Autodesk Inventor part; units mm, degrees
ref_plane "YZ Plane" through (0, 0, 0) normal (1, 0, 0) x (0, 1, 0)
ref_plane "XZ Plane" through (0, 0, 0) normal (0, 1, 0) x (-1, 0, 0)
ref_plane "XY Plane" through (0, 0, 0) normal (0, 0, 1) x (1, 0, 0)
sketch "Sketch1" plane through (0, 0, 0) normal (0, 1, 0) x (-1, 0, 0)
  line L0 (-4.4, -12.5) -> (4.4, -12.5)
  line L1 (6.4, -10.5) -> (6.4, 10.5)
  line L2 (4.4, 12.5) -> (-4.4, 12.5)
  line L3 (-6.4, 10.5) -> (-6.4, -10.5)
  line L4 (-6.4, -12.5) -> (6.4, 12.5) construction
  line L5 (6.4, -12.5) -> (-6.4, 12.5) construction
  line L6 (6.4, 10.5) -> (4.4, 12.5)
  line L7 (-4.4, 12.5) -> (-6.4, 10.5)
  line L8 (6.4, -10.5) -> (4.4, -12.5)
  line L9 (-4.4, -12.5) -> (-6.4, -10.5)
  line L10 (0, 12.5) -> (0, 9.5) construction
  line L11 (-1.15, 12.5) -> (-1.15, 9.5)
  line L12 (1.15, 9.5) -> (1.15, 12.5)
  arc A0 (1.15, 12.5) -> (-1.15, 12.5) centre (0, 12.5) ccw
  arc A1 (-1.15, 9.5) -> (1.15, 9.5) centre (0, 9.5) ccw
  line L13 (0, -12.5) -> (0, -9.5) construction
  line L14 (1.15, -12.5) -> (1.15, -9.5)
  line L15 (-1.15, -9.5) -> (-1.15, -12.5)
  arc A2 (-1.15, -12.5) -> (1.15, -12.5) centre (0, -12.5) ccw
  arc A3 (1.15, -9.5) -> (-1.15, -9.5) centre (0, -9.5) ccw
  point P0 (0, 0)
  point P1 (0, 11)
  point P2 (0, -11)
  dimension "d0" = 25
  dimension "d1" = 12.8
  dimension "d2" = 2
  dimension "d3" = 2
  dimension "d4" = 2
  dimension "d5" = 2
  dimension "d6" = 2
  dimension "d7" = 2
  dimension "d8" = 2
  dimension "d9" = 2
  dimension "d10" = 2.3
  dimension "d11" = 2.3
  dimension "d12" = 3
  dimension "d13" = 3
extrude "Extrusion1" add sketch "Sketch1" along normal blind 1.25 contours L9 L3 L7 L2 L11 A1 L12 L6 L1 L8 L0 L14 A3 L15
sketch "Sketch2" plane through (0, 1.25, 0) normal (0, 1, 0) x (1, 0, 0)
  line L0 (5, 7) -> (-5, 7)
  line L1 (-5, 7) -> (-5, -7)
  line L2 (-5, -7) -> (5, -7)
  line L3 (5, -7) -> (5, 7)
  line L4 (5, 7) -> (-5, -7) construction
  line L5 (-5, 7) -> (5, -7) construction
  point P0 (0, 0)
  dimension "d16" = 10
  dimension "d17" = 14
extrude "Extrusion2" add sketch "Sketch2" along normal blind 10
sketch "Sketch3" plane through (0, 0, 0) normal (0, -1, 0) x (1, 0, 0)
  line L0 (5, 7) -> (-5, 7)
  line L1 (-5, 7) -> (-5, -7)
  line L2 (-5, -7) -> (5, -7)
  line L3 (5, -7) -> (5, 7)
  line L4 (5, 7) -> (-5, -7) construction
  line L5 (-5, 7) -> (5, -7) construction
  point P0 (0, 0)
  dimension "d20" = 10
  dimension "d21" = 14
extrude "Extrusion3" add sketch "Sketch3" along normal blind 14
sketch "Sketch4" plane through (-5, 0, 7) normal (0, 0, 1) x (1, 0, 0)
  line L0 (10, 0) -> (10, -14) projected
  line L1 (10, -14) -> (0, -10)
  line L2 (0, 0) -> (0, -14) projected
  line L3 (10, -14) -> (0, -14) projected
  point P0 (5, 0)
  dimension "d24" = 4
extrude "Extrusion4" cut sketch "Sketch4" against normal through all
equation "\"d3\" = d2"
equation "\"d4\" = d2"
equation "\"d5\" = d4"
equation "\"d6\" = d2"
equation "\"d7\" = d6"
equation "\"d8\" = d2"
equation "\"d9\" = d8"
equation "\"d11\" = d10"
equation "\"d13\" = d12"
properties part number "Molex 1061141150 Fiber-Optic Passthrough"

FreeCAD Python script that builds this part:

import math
import FreeCAD as App
import Part
import Sketcher
Q = App.Units.Quantity


def add_polygon(sketch, points):
    """Adds a closed chain of lines whose ends are joined by coincident constraints."""
    first, n = sketch.GeometryCount, len(points)
    for a, b in zip(points, points[1:] + points[:1]):
        sketch.addGeometry(Part.LineSegment(App.Vector(*a, 0), App.Vector(*b, 0)), False)
    for i in range(n):
        sketch.addConstraint(Sketcher.Constraint("Coincident", first + i, 2, first + (i + 1) % n, 1))

doc = App.newDocument("Part")
params = doc.addObject("Spreadsheet::Sheet", "Params")
for row, (alias, value) in enumerate([
    ("sketch1_height", "3 mm"),
    ("sketch1_radius", "1.15 mm"),
    ("sketch1_height2", "21 mm"),
    ("sketch1_width", "3.25 mm"),
    ("pad1_length", "1.25 mm"),
    ("sketch2_width", "10 mm"),
    ("sketch2_height", "14 mm"),
    ("pad2_length", "10 mm"),
    ("sketch3_width", "10 mm"),
    ("sketch3_height", "14 mm"),
    ("pad3_length", "14 mm"),
    ("sketch4_height", "4 mm"),
    ("sketch4_width", "10 mm"),
], start=1):
    params.set(f"A{row}", alias)
    params.set(f"B{row}", "=" + value)
    params.setAlias(f"B{row}", alias)

body = doc.addObject("PartDesign::Body", "Body")

sketch1 = body.newObject("Sketcher::SketchObject", "Sketch")
sketch1.AttachmentSupport = (doc.getObject("XZ_Plane"), [""])
sketch1.MapMode = "FlatFace"
sketch1.addGeometry([
    Part.LineSegment(App.Vector(6.4, -10.5, 0), App.Vector(4.4, -12.5, 0)),
    Part.LineSegment(App.Vector(4.4, -12.5, 0), App.Vector(1.1, -12.5, 0)),
    Part.LineSegment(App.Vector(1.1, -12.5, 0), App.Vector(1.1, -9.5, 0)),
    Part.ArcOfCircle(Part.Circle(App.Vector(0, -9.5, 0), App.Vector(0, 0, 1), 1.1), math.radians(0), math.radians(180)),
    Part.LineSegment(App.Vector(-1.1, -9.5, 0), App.Vector(-1.1, -12.5, 0)),
    Part.LineSegment(App.Vector(-1.1, -12.5, 0), App.Vector(-4.4, -12.5, 0)),
    Part.LineSegment(App.Vector(-4.4, -12.5, 0), App.Vector(-6.4, -10.5, 0)),
    Part.LineSegment(App.Vector(-6.4, -10.5, 0), App.Vector(-6.4, 10.5, 0)),
    Part.LineSegment(App.Vector(-6.4, 10.5, 0), App.Vector(-4.4, 12.5, 0)),
    Part.LineSegment(App.Vector(-4.4, 12.5, 0), App.Vector(-1.1, 12.5, 0)),
    Part.LineSegment(App.Vector(-1.1, 12.5, 0), App.Vector(-1.1, 9.5, 0)),
    Part.ArcOfCircle(Part.Circle(App.Vector(0, 9.5, 0), App.Vector(0, 0, 1), 1.1), math.radians(180), math.radians(360)),
    Part.LineSegment(App.Vector(1.1, 9.5, 0), App.Vector(1.1, 12.5, 0)),
    Part.LineSegment(App.Vector(1.1, 12.5, 0), App.Vector(4.4, 12.5, 0)),
    Part.LineSegment(App.Vector(4.4, 12.5, 0), App.Vector(6.4, 10.5, 0)),
    Part.LineSegment(App.Vector(6.4, 10.5, 0), App.Vector(6.4, -10.5, 0)),
], False)
sketch1.addConstraint([
    Sketcher.Constraint("Coincident", 0, 2, 1, 1),
    Sketcher.Constraint("Coincident", 1, 2, 2, 1),
    Sketcher.Constraint("Tangent", 2, 2, 3, 1),
    Sketcher.Constraint("Tangent", 3, 2, 4, 1),
    Sketcher.Constraint("Coincident", 4, 2, 5, 1),
    Sketcher.Constraint("Coincident", 5, 2, 6, 1),
    Sketcher.Constraint("Coincident", 6, 2, 7, 1),
    Sketcher.Constraint("Coincident", 7, 2, 8, 1),
    Sketcher.Constraint("Coincident", 8, 2, 9, 1),
    Sketcher.Constraint("Coincident", 9, 2, 10, 1),
    Sketcher.Constraint("Tangent", 10, 2, 11, 1),
    Sketcher.Constraint("Tangent", 11, 2, 12, 1),
    Sketcher.Constraint("Coincident", 12, 2, 13, 1),
    Sketcher.Constraint("Coincident", 13, 2, 14, 1),
    Sketcher.Constraint("Coincident", 14, 2, 15, 1),
    Sketcher.Constraint("Coincident", 15, 2, 0, 1),
    Sketcher.Constraint("Horizontal", 1),
    Sketcher.Constraint("Vertical", 2),
    Sketcher.Constraint("Vertical", 4),
    Sketcher.Constraint("Horizontal", 5),
    Sketcher.Constraint("Vertical", 7),
    Sketcher.Constraint("Horizontal", 9),
    Sketcher.Constraint("Vertical", 10),
    Sketcher.Constraint("Vertical", 12),
    Sketcher.Constraint("Horizontal", 13),
    Sketcher.Constraint("Vertical", 15),
    Sketcher.Constraint("Equal", 3, 11),
    Sketcher.Constraint("Symmetric", 3, 3, 11, 3, -1, 1),
    Sketcher.Constraint("Symmetric", 0, 2, 8, 2, -1, 1),
    Sketcher.Constraint("Symmetric", 5, 2, 13, 2, -1, 1),
    Sketcher.Constraint("Symmetric", 6, 2, 14, 2, -1, 1),
    Sketcher.Constraint("Symmetric", 1, 2, 4, 2, -2),
    Sketcher.Constraint("Perpendicular", 0, 6),
    Sketcher.Constraint("Perpendicular", 6, 8),
    Sketcher.Constraint("Horizontal", 7, 2, 14, 2),
    Sketcher.Constraint("Vertical", 5, 2, 8, 2),
    Sketcher.Constraint("DistanceY", 2, 1, 2, 2, Q("3 mm")),
    Sketcher.Constraint("Radius", 3, Q("1.15 mm")),
    Sketcher.Constraint("DistanceX", 6, 2, 5, 2, Q("2 mm")),
    Sketcher.Constraint("DistanceY", 7, 1, 7, 2, Q("21 mm")),
    Sketcher.Constraint("DistanceX", 1, 2, 1, 1, Q("3.25 mm")),
])
sketch1.setExpression("Constraints[36]", "Params.sketch1_height")
sketch1.setExpression("Constraints[37]", "Params.sketch1_radius")
sketch1.setExpression("Constraints[39]", "Params.sketch1_height2")
sketch1.setExpression("Constraints[40]", "Params.sketch1_width")
pad1 = body.newObject("PartDesign::Pad", "Pad")
pad1.Profile = sketch1
pad1.setExpression("Length", "Params.pad1_length")
pad1.Reversed = True

sketch2 = body.newObject("Sketcher::SketchObject", "Sketch001")
sketch2.AttachmentSupport = (doc.getObject("XZ_Plane"), [""])
sketch2.MapMode = "FlatFace"
sketch2.AttachmentOffset = App.Placement(App.Vector(0, 0, -1.25), App.Rotation())
add_polygon(sketch2, [(5, 7), (5, -7), (-5, -7), (-5, 7)])
sketch2.addConstraint([
    Sketcher.Constraint("Vertical", 0),
    Sketcher.Constraint("Horizontal", 1),
    Sketcher.Constraint("Vertical", 2),
    Sketcher.Constraint("Horizontal", 3),
    Sketcher.Constraint("Symmetric", 0, 2, 2, 2, -1, 1),
    Sketcher.Constraint("DistanceX", 1, 2, 1, 1, Q("10 mm")),
    Sketcher.Constraint("DistanceY", 0, 2, 0, 1, Q("14 mm")),
])
sketch2.setExpression("Constraints[9]", "Params.sketch2_width")
sketch2.setExpression("Constraints[10]", "Params.sketch2_height")
pad2 = body.newObject("PartDesign::Pad", "Pad001")
pad2.Profile = sketch2
pad2.setExpression("Length", "Params.pad2_length")
pad2.Reversed = True

sketch3 = body.newObject("Sketcher::SketchObject", "Sketch002")
sketch3.AttachmentSupport = (doc.getObject("XZ_Plane"), [""])
sketch3.MapMode = "FlatFace"
add_polygon(sketch3, [(5, -7), (5, 7), (-5, 7), (-5, -7)])
sketch3.addConstraint([
    Sketcher.Constraint("Vertical", 0),
    Sketcher.Constraint("Horizontal", 1),
    Sketcher.Constraint("Vertical", 2),
    Sketcher.Constraint("Horizontal", 3),
    Sketcher.Constraint("Symmetric", 0, 2, 2, 2, -1, 1),
    Sketcher.Constraint("DistanceX", 1, 2, 1, 1, Q("10 mm")),
    Sketcher.Constraint("DistanceY", 0, 1, 0, 2, Q("14 mm")),
])
sketch3.setExpression("Constraints[9]", "Params.sketch3_width")
sketch3.setExpression("Constraints[10]", "Params.sketch3_height")
pad3 = body.newObject("PartDesign::Pad", "Pad002")
pad3.Profile = sketch3
pad3.setExpression("Length", "Params.pad3_length")

sketch4 = body.newObject("Sketcher::SketchObject", "Sketch003")
sketch4.AttachmentSupport = (doc.getObject("XY_Plane"), [""])
sketch4.MapMode = "FlatFace"
sketch4.AttachmentOffset = App.Placement(App.Vector(0, 0, 7), App.Rotation())
add_polygon(sketch4, [(-5, -14), (5, -14), (-5, -10)])
sketch4.addConstraint([
    Sketcher.Constraint("Horizontal", 0),
    Sketcher.Constraint("Vertical", 2),
    Sketcher.Constraint("DistanceY", 2, 2, 2, 1, Q("4 mm")),
    Sketcher.Constraint("DistanceX", 0, 1, 0, 2, Q("10 mm")),
    Sketcher.Constraint("DistanceX", -1, 1, 0, 2, Q("5 mm")),
    Sketcher.Constraint("DistanceY", 0, 2, -1, 1, Q("14 mm")),
])
sketch4.setExpression("Constraints[5]", "Params.sketch4_height")
sketch4.setExpression("Constraints[6]", "Params.sketch4_width")
pocket1 = body.newObject("PartDesign::Pocket", "Pocket")
pocket1.Profile = sketch4
pocket1.Type = "ThroughAll"

doc.recompute()
